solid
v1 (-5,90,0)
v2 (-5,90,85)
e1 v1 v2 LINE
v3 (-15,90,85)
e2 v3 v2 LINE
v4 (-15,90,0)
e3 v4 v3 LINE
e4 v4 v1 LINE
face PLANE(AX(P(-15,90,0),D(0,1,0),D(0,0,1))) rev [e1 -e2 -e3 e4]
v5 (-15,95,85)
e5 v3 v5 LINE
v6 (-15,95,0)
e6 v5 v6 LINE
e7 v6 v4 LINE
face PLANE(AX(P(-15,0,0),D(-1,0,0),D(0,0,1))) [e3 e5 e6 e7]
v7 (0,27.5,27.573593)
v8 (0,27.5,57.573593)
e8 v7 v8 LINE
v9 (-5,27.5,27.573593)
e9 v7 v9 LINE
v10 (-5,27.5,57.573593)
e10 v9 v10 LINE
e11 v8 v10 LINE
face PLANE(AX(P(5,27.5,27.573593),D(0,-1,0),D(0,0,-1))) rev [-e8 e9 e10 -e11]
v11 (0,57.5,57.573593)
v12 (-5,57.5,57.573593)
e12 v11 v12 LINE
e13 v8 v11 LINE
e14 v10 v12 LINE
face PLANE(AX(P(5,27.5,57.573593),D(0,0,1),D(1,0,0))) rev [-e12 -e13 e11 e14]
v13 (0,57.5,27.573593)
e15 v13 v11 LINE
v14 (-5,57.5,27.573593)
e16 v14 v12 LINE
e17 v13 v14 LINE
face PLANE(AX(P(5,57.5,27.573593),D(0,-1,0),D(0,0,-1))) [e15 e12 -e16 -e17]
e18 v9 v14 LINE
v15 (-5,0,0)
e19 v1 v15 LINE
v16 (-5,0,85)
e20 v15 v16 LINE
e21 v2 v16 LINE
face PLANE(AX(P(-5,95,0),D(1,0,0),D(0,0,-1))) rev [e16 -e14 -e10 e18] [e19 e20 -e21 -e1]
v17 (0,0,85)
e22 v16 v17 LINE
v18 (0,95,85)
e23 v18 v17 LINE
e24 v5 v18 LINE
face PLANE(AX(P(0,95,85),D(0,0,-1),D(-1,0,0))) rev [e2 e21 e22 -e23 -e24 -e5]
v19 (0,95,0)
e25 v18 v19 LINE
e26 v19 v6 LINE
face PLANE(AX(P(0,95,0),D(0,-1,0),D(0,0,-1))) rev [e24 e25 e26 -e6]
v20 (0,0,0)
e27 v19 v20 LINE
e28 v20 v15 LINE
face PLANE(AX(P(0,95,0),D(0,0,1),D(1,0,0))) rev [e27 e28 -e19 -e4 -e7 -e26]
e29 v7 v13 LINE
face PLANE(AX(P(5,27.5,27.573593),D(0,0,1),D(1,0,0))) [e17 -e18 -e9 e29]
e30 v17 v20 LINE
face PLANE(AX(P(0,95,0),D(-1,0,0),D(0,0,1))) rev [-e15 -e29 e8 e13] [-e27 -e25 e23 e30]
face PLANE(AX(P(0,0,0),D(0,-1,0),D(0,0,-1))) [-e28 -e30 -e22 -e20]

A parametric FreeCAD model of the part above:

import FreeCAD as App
import Part
import Sketcher
Q = App.Units.Quantity


def add_polygon(sketch, points):
    """Adds a closed chain of lines whose ends are joined by coincident constraints."""
    first, n = sketch.GeometryCount, len(points)
    for a, b in zip(points, points[1:] + points[:1]):
        sketch.addGeometry(Part.LineSegment(App.Vector(*a, 0), App.Vector(*b, 0)), False)
    for i in range(n):
        sketch.addConstraint(Sketcher.Constraint("Coincident", first + i, 2, first + (i + 1) % n, 1))

doc = App.newDocument("Part")
body = doc.addObject("PartDesign::Body", "Body")

# Sketch on XZ plane
sketch1 = doc.addObject("Sketcher::SketchObject", "Sketch")
body.addObject(sketch1)
sketch1.AttachmentSupport = (doc.XZ_Plane, [""])
sketch1.MapMode = "FlatFace"
add_polygon(sketch1, [(-5, 0), (-5, 85), (0, 85), (0, 0)])  # lines 0-3
sketch1.addConstraint([
    Sketcher.Constraint("Vertical", 0),
    Sketcher.Constraint("Horizontal", 1),
    Sketcher.Constraint("Vertical", 2),
    Sketcher.Constraint("Horizontal", 3),
    Sketcher.Constraint("Coincident", 2, 2, -1, 1),
    Sketcher.Constraint("DistanceX", 1, 1, 1, 2, Q("5 mm")),
    Sketcher.Constraint("DistanceY", 0, 1, 0, 2, Q("85 mm")),
])
pad1 = doc.addObject("PartDesign::Pad", "Pad")
body.addObject(pad1)
pad1.Profile = sketch1
pad1.Length = 95
pad1.Reversed = True

# Sketch on YZ plane
sketch2 = doc.addObject("Sketcher::SketchObject", "Sketch001")
body.addObject(sketch2)
sketch2.AttachmentSupport = (doc.YZ_Plane, [""])
sketch2.MapMode = "FlatFace"
sketch2.AttachmentOffset = App.Placement(App.Vector(0, 0, -5), App.Rotation())
add_polygon(sketch2, [(95, 0), (90, 0), (90, 85), (95, 85)])  # lines 0-3
sketch2.addConstraint([
    Sketcher.Constraint("Horizontal", 0),
    Sketcher.Constraint("Vertical", 1),
    Sketcher.Constraint("Horizontal", 2),
    Sketcher.Constraint("Vertical", 3),
    Sketcher.Constraint("PointOnObject", 0, 2, -1),
    Sketcher.Constraint("DistanceX", 0, 2, 0, 1, Q("5 mm")),
    Sketcher.Constraint("DistanceY", 1, 1, 1, 2, Q("85 mm")),
    Sketcher.Constraint("DistanceX", -1, 1, 0, 2, Q("90 mm")),
])
pad2 = doc.addObject("PartDesign::Pad", "Pad001")
body.addObject(pad2)
pad2.Profile = sketch2
pad2.Length = 10
pad2.Reversed = True

# Sketch on YZ plane
sketch3 = doc.addObject("Sketcher::SketchObject", "Sketch002")
body.addObject(sketch3)
sketch3.AttachmentSupport = (doc.YZ_Plane, [""])
sketch3.MapMode = "FlatFace"
sketch3.AttachmentOffset = App.Placement(App.Vector(0, 0, -5), App.Rotation())
add_polygon(sketch3, [(57.5, 27.573593), (27.5, 27.573593), (27.5, 57.573593), (57.5, 57.573593)])  # lines 0-3
sketch3.addConstraint([
    Sketcher.Constraint("Horizontal", 0),
    Sketcher.Constraint("Vertical", 1),
    Sketcher.Constraint("Horizontal", 2),
    Sketcher.Constraint("Vertical", 3),
    Sketcher.Constraint("Equal", 2, 1),
    Sketcher.Constraint("DistanceX", 0, 2, 0, 1, Q("30 mm")),
    Sketcher.Constraint("DistanceX", -1, 1, 0, 2, Q("27.5 mm")),
    Sketcher.Constraint("DistanceY", -1, 1, 0, 2, Q("27.573593 mm")),
])
pocket1 = doc.addObject("PartDesign::Pocket", "Pocket")
body.addObject(pocket1)
pocket1.Profile = sketch3
pocket1.Length = 10
pocket1.Reversed = True

doc.recompute()
